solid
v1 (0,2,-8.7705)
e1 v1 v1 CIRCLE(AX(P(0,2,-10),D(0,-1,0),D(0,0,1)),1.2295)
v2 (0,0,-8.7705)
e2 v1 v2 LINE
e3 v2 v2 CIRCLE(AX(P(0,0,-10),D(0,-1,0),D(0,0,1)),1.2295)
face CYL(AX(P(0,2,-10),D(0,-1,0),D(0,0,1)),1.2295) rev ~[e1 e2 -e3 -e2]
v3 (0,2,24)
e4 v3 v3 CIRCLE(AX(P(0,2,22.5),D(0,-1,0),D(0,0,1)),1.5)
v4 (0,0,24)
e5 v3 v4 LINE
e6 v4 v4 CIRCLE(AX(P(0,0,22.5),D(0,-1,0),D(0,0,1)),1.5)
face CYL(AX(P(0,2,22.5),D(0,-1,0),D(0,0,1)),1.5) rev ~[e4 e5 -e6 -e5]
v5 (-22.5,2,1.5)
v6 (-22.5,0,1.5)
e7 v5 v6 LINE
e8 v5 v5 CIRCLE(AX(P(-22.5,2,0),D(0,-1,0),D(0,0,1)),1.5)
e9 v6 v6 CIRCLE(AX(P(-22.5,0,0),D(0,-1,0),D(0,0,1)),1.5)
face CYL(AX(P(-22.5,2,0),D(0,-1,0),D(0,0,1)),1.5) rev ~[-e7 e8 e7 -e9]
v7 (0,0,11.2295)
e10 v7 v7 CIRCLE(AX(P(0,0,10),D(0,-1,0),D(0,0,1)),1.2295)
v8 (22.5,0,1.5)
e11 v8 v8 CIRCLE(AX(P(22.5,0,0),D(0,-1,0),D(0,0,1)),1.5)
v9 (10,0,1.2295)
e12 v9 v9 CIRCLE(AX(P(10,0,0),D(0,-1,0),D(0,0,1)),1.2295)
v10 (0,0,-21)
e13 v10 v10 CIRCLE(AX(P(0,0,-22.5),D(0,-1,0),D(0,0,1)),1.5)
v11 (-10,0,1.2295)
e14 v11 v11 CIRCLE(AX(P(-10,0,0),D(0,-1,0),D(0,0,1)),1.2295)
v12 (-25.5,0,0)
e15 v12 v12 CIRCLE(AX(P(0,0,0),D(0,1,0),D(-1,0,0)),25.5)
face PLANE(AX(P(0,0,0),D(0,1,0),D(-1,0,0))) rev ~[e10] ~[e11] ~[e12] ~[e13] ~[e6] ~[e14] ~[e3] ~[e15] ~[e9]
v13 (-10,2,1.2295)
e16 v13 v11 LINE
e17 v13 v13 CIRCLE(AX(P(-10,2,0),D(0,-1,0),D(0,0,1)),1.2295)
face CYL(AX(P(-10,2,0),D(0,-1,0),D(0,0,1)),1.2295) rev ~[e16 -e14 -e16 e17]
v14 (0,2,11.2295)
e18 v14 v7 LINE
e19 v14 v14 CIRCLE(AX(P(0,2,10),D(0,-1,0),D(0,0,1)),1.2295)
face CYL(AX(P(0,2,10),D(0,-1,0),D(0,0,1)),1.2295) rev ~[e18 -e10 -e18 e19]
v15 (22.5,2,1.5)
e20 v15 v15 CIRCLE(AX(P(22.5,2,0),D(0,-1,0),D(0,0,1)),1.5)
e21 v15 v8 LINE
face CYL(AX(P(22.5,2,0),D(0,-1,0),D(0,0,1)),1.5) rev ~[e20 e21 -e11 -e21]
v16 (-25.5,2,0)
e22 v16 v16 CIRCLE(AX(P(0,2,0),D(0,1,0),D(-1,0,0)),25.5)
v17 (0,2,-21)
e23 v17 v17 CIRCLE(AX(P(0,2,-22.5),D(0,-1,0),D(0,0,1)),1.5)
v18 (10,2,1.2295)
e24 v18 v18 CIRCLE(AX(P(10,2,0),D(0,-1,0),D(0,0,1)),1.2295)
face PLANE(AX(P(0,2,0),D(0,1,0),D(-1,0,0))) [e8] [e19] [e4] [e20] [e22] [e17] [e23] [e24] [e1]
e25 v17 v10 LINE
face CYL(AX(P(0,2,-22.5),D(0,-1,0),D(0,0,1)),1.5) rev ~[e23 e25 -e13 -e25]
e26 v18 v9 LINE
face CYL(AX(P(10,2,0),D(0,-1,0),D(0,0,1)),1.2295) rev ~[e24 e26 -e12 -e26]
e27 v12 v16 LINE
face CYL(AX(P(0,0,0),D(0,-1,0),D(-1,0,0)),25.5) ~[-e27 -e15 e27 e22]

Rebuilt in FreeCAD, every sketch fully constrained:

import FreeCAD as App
import Part
import Sketcher

doc = App.newDocument("Part")
body = doc.addObject("PartDesign::Body", "Body")

# Sketch on XZ plane
sketch1 = doc.addObject("Sketcher::SketchObject", "Sketch")
body.addObject(sketch1)
sketch1.AttachmentSupport = (doc.XZ_Plane, [""])
sketch1.MapMode = "FlatFace"
sketch1.addGeometry(Part.Circle(App.Vector(0, 0, 0), App.Vector(0, 0, 1), 25.5), False)
sketch1.addConstraint([
    Sketcher.Constraint("Coincident", 0, 3, -1, 1),
    Sketcher.Constraint("Diameter", 0, 51.0),
])
pad1 = doc.addObject("PartDesign::Pad", "Pad")
body.addObject(pad1)
pad1.Profile = sketch1
pad1.Length = 2
pad1.Reversed = True

# Sketch on XZ plane
sketch2 = doc.addObject("Sketcher::SketchObject", "Sketch001")
body.addObject(sketch2)
sketch2.AttachmentSupport = (doc.XZ_Plane, [""])
sketch2.MapMode = "FlatFace"
sketch2.AttachmentOffset = App.Placement(App.Vector(0, 0, -2), App.Rotation())
sketch2.addGeometry([
    Part.Circle(App.Vector(-22.5, 0, 0), App.Vector(0, 0, 1), 1.5),
    Part.Circle(App.Vector(0, 22.5, 0), App.Vector(0, 0, 1), 1.5),
    Part.Circle(App.Vector(22.5, 0, 0), App.Vector(0, 0, 1), 1.5),
    Part.Circle(App.Vector(0, -22.5, 0), App.Vector(0, 0, 1), 1.5),
], False)
sketch2.addConstraint([
    Sketcher.Constraint("Equal", 0, 1),
    Sketcher.Constraint("Equal", 1, 2),
    Sketcher.Constraint("Equal", 2, 3),
    Sketcher.Constraint("Symmetric", 0, 3, 2, 3, -1, 1),
    Sketcher.Constraint("Symmetric", 1, 3, 3, 3, -1, 1),
    Sketcher.Constraint("PointOnObject", 0, 3, -1),
    Sketcher.Constraint("PointOnObject", 1, 3, -2),
    Sketcher.Constraint("Diameter", 0, 3.0),
    Sketcher.Constraint("DistanceX", 0, 3, 2, 3, 45.0),
    Sketcher.Constraint("DistanceY", 3, 3, 1, 3, 45.0),
])
doc.recompute()
hole = doc.addObject("PartDesign::Hole", "Hole")
body.addObject(hole)
hole.Profile = sketch2
hole.ThreadType = "None"
hole.Diameter = 3
hole.DepthType = "ThroughAll"
hole.Reversed = True

# Sketch on XZ plane
sketch3 = doc.addObject("Sketcher::SketchObject", "Sketch002")
body.addObject(sketch3)
sketch3.AttachmentSupport = (doc.XZ_Plane, [""])
sketch3.MapMode = "FlatFace"
sketch3.AttachmentOffset = App.Placement(App.Vector(0, 0, -2), App.Rotation())
sketch3.addGeometry([
    Part.Circle(App.Vector(-10, 0, 0), App.Vector(0, 0, 1), 1.2295),
    Part.Circle(App.Vector(0, 10, 0), App.Vector(0, 0, 1), 1.2295),
    Part.Circle(App.Vector(10, 0, 0), App.Vector(0, 0, 1), 1.2295),
    Part.Circle(App.Vector(0, -10, 0), App.Vector(0, 0, 1), 1.2295),
], False)
sketch3.addConstraint([
    Sketcher.Constraint("Equal", 0, 1),
    Sketcher.Constraint("Equal", 1, 2),
    Sketcher.Constraint("Equal", 2, 3),
    Sketcher.Constraint("Symmetric", 0, 3, 2, 3, -1, 1),
    Sketcher.Constraint("Symmetric", 1, 3, 3, 3, -1, 1),
    Sketcher.Constraint("PointOnObject", 0, 3, -1),
    Sketcher.Constraint("PointOnObject", 1, 3, -2),
    Sketcher.Constraint("Diameter", 0, 2.459),
    Sketcher.Constraint("DistanceX", 0, 3, -1, 1, 10.0),
    Sketcher.Constraint("DistanceY", -1, 1, 1, 3, 10.0),
])
doc.recompute()
hole2 = doc.addObject("PartDesign::Hole", "Hole001")
body.addObject(hole2)
hole2.Profile = sketch3
hole2.ThreadType = "None"
hole2.Diameter = 2.459
hole2.DepthType = "ThroughAll"
hole2.Reversed = True

doc.recompute()
